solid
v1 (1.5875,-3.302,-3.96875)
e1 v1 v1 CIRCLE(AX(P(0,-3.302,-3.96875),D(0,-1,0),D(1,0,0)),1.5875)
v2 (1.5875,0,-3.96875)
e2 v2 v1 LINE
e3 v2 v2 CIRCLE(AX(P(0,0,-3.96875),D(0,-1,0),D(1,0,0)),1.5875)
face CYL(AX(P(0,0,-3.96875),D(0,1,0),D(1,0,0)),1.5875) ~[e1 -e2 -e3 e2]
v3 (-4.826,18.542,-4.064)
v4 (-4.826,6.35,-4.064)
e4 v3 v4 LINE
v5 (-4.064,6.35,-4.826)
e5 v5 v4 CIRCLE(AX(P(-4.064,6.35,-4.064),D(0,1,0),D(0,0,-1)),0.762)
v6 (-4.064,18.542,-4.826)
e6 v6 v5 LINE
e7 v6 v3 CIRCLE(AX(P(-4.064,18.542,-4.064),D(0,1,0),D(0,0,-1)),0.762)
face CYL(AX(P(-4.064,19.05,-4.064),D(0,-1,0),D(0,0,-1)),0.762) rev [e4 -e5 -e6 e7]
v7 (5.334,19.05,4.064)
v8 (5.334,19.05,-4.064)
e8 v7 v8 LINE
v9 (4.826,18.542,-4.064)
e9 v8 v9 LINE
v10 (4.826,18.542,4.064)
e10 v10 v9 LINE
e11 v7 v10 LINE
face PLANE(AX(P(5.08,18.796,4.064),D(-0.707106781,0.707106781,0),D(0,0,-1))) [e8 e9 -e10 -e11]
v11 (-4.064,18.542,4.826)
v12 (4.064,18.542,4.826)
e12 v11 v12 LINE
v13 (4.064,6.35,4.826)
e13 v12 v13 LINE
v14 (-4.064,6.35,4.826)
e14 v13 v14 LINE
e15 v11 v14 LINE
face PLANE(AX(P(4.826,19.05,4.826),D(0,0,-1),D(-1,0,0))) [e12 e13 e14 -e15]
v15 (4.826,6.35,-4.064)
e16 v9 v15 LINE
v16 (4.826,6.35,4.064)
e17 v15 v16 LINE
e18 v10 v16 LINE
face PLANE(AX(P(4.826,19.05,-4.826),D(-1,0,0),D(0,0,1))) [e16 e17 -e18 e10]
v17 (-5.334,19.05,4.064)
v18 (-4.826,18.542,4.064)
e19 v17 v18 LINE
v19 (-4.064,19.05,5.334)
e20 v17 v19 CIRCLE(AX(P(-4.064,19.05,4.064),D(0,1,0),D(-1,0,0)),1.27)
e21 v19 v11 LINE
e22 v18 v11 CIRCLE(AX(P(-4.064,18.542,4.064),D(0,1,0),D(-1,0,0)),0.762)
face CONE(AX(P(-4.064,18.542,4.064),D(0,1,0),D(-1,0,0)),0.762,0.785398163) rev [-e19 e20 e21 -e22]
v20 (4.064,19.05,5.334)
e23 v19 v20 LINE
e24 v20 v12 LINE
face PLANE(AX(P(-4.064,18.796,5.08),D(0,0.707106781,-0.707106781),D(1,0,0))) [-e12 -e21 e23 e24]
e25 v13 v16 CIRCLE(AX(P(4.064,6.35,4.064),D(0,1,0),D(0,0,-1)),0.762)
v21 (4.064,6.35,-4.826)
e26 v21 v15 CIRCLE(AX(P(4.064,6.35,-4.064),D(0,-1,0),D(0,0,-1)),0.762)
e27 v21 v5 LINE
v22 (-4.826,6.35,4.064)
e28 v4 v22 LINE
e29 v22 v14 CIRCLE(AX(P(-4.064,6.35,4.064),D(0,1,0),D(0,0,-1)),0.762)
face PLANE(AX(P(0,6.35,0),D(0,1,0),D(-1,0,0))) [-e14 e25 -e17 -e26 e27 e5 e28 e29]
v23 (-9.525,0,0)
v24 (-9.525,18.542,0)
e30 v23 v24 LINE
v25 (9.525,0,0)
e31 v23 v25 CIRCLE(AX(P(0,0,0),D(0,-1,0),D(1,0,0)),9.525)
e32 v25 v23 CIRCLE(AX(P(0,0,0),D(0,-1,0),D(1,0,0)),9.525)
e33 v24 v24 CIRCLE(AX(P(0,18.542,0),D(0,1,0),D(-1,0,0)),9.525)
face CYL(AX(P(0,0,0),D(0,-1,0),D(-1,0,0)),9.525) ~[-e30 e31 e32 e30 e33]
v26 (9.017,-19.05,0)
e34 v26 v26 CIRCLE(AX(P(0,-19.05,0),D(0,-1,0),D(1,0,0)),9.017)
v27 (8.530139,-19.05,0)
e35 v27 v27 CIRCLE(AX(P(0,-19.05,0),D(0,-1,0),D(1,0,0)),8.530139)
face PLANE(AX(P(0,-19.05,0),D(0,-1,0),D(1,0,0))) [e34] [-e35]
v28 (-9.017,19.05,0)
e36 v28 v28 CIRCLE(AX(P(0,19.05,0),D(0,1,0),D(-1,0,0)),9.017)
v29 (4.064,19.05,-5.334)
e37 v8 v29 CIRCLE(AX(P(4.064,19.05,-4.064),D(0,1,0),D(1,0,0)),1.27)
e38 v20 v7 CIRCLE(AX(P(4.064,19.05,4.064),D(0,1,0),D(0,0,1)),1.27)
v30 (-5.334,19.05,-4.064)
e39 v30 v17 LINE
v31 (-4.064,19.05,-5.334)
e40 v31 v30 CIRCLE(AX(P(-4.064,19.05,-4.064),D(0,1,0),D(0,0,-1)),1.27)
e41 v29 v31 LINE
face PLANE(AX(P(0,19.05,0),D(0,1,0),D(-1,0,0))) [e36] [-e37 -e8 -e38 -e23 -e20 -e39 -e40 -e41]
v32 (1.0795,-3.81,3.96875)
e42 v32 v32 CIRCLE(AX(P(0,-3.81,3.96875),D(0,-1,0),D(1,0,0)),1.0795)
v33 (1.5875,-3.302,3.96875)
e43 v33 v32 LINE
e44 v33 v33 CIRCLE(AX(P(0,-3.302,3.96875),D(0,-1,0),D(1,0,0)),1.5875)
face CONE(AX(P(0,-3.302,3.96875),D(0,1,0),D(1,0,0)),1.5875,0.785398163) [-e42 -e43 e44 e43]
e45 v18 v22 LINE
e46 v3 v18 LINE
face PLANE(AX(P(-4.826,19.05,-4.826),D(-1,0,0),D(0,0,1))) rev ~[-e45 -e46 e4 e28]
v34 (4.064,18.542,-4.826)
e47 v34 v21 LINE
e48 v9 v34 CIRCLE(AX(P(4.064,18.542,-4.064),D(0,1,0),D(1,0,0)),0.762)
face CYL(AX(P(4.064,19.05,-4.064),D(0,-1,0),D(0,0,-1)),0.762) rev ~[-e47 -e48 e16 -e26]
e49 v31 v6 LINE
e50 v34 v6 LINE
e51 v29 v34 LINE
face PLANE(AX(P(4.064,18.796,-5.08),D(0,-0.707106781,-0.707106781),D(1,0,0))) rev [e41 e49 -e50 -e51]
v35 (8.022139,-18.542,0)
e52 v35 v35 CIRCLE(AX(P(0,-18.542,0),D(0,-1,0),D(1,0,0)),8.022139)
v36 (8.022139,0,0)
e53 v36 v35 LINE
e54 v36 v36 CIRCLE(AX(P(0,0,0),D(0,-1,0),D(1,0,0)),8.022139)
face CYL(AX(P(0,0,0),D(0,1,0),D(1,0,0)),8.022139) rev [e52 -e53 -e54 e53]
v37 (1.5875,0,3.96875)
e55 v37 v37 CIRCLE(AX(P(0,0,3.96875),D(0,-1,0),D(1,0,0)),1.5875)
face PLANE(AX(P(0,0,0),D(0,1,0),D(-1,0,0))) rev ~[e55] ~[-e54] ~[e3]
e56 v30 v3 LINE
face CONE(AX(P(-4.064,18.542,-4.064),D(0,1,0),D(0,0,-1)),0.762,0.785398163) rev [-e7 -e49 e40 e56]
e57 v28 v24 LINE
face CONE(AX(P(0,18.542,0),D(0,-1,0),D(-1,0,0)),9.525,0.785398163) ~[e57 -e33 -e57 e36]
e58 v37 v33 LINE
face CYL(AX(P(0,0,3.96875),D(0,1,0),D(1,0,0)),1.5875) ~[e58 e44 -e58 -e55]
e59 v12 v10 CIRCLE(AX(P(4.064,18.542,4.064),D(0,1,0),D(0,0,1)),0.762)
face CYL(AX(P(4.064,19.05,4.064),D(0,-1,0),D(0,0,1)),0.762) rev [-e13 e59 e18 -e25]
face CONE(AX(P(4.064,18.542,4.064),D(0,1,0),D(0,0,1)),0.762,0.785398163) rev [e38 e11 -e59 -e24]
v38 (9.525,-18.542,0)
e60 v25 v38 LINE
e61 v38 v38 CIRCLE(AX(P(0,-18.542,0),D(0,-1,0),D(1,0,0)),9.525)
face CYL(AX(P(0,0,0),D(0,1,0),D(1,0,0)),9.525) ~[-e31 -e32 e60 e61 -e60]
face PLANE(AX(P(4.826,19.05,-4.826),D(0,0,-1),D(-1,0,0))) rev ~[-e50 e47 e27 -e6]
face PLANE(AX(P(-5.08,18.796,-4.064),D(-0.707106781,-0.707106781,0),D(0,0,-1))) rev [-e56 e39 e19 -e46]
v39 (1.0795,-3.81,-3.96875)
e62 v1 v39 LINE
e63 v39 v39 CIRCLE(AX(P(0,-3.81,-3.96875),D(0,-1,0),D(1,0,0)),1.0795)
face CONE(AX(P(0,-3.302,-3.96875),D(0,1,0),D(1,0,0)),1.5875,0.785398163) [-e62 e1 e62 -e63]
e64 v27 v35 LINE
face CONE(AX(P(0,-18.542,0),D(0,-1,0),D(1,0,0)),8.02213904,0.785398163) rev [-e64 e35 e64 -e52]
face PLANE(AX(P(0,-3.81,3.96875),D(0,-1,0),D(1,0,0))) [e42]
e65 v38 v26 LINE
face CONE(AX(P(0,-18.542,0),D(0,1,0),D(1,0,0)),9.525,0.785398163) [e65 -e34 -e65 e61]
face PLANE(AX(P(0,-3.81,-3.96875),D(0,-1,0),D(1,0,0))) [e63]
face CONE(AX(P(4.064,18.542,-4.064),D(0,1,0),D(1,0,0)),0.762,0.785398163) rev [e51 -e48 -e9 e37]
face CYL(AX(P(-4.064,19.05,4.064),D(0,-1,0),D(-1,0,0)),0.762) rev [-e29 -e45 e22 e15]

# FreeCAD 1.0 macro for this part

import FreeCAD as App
import Part
import Sketcher
Q = App.Units.Quantity


def edges_at(feature, points):
    """Names of the edges that pass closest to the given points."""
    edges = feature.Shape.Edges
    near = lambda p: min(range(len(edges)), key=lambda i: edges[i].distToShape(Part.Vertex(*p))[0])
    return sorted({f"Edge{near(p) + 1}" for p in points})


def add_polygon(sketch, points):
    """Adds a closed chain of lines whose ends are joined by coincident constraints."""
    first, n = sketch.GeometryCount, len(points)
    for a, b in zip(points, points[1:] + points[:1]):
        sketch.addGeometry(Part.LineSegment(App.Vector(*a, 0), App.Vector(*b, 0)), False)
    for i in range(n):
        sketch.addConstraint(Sketcher.Constraint("Coincident", first + i, 2, first + (i + 1) % n, 1))

doc = App.newDocument("Part")
params = doc.addObject("Spreadsheet::Sheet", "Params")
for row, (alias, value) in enumerate([
    ("sketch1_diameter", "0.125 in"),
    ("pad1_length", "0.15 in"),
    ("sketch2_diameter", "0.125 in"),
    ("pad2_length", "0.15 in"),
    ("sketch3_diameter", "0.75 in"),
    ("pad3_length", "0.75 in"),
    ("sketch4_diameter", "0.75 in"),
    ("pad4_length", "0.75 in"),
    ("sketch5_width", "0.38 in"),
    ("pocket1_length", "0.5 in"),
    ("fillet_radius", "0.03 in"),
    ("chamfer_size", "0.02 in"),
], start=1):
    params.set(f"A{row}", alias)
    params.set(f"B{row}", "=" + value)
    params.setAlias(f"B{row}", alias)

body = doc.addObject("PartDesign::Body", "Body")

sketch1 = body.newObject("Sketcher::SketchObject", "Sketch")
sketch1.AttachmentSupport = (doc.getObject("XZ_Plane"), [""])
sketch1.MapMode = "FlatFace"
sketch1.addGeometry(Part.Circle(App.Vector(0, 3.96875, 0), App.Vector(0, 0, 1), 1.5875), False)
sketch1.addConstraint([
    Sketcher.Constraint("PointOnObject", 0, 3, -2),
    Sketcher.Constraint("Diameter", 0, Q("0.125 in")),
    Sketcher.Constraint("DistanceY", -1, 1, 0, 3, Q("0.15625 in")),
])
sketch1.setExpression("Constraints[1]", "Params.sketch1_diameter")
pad1 = body.newObject("PartDesign::Pad", "Pad")
pad1.Profile = sketch1
pad1.setExpression("Length", "Params.pad1_length")
body2 = doc.addObject("PartDesign::Body", "Body001")

sketch2 = body2.newObject("Sketcher::SketchObject", "Sketch001")
sketch2.AttachmentSupport = (doc.getObject("XZ_Plane001"), [""])
sketch2.MapMode = "FlatFace"
sketch2.addGeometry(Part.Circle(App.Vector(0, -3.96875, 0), App.Vector(0, 0, 1), 1.5875), False)
sketch2.addConstraint([
    Sketcher.Constraint("PointOnObject", 0, 3, -2),
    Sketcher.Constraint("Diameter", 0, Q("0.125 in")),
    Sketcher.Constraint("DistanceY", 0, 3, -1, 1, Q("0.15625 in")),
])
sketch2.setExpression("Constraints[1]", "Params.sketch2_diameter")
pad2 = body2.newObject("PartDesign::Pad", "Pad001")
pad2.Profile = sketch2
pad2.setExpression("Length", "Params.pad2_length")
body3 = doc.addObject("PartDesign::Body", "Body002")

sketch3 = body3.newObject("Sketcher::SketchObject", "Sketch002")
sketch3.AttachmentSupport = (doc.getObject("XZ_Plane002"), [""])
sketch3.MapMode = "FlatFace"
sketch3.addGeometry([
    Part.Circle(App.Vector(0, 0, 0), App.Vector(0, 0, 1), 9.525),
    Part.Circle(App.Vector(0, 0, 0), App.Vector(0, 0, 1), 8.022139),
], False)
sketch3.addConstraint([
    Sketcher.Constraint("Coincident", 0, 3, -1, 1),
    Sketcher.Constraint("Coincident", 1, 3, -1, 1),
    Sketcher.Constraint("Diameter", 0, Q("0.75 in")),
    Sketcher.Constraint("Diameter", 1, 16.044278),
])
sketch3.setExpression("Constraints[2]", "Params.sketch3_diameter")
pad3 = body3.newObject("PartDesign::Pad", "Pad002")
pad3.Profile = sketch3
pad3.setExpression("Length", "Params.pad3_length")
body.AllowCompound = True
doc.recompute()

boolean = body.newObject("PartDesign::Boolean", "Boolean")
boolean.Type = "Fuse"
boolean.addObjects([body2])
doc.recompute()

boolean2 = body.newObject("PartDesign::Boolean", "Boolean001")
boolean2.Type = "Fuse"
boolean2.addObjects([body3])

sketch4 = body.newObject("Sketcher::SketchObject", "Sketch003")
sketch4.AttachmentSupport = (doc.getObject("XZ_Plane"), [""])
sketch4.MapMode = "FlatFace"
sketch4.addGeometry(Part.Circle(App.Vector(0, 0, 0), App.Vector(0, 0, 1), 9.525), False)
sketch4.addConstraint([
    Sketcher.Constraint("Coincident", 0, 3, -1, 1),
    Sketcher.Constraint("Diameter", 0, Q("0.75 in")),
])
sketch4.setExpression("Constraints[1]", "Params.sketch4_diameter")
pad4 = body.newObject("PartDesign::Pad", "Pad003")
pad4.Profile = sketch4
pad4.setExpression("Length", "Params.pad4_length")
pad4.Reversed = True

sketch5 = body.newObject("Sketcher::SketchObject", "Sketch004")
sketch5.AttachmentSupport = (doc.getObject("XZ_Plane"), [""])
sketch5.MapMode = "FlatFace"
sketch5.AttachmentOffset = App.Placement(App.Vector(0, 0, -0.75 * 25.4), App.Rotation())
add_polygon(sketch5, [(4.826, 4.826), (4.826, -4.826), (-4.826, -4.826), (-4.826, 4.826)])
sketch5.addConstraint([
    Sketcher.Constraint("Vertical", 0),
    Sketcher.Constraint("Horizontal", 1),
    Sketcher.Constraint("Vertical", 2),
    Sketcher.Constraint("Horizontal", 3),
    Sketcher.Constraint("Symmetric", 0, 2, 2, 2, -1, 1),
    Sketcher.Constraint("Equal", 3, 0),
    Sketcher.Constraint("DistanceX", 1, 2, 1, 1, Q("0.38 in")),
])
sketch5.setExpression("Constraints[10]", "Params.sketch5_width")
pocket1 = body.newObject("PartDesign::Pocket", "Pocket")
pocket1.Profile = sketch5
pocket1.setExpression("Length", "Params.pocket1_length")
pocket1.Reversed = True
doc.recompute()

fillet = body.newObject("PartDesign::Fillet", "Fillet")
fillet.Base = (pocket1, edges_at(pocket1, [
    (-4.826, 12.7, -4.826),
    (-4.826, 12.7, 4.826),
    (4.826, 12.7, 4.826),
    (4.826, 12.7, -4.826),
]))
fillet.setExpression("Radius", "Params.fillet_radius")
doc.recompute()

chamfer = body.newObject("PartDesign::Chamfer", "Chamfer")
chamfer.Base = (fillet, edges_at(fillet, [
    (0, 19.05, -4.826),
    (9.525, 19.05, 0),
    (-9.525, -19.05, 0),
    (-8.022, -19.05, 0),
    (-1.587, -3.81, 3.969),
    (-1.587, -3.81, -3.969),
]))
chamfer.setExpression("Size", "Params.chamfer_size")

doc.recompute()
